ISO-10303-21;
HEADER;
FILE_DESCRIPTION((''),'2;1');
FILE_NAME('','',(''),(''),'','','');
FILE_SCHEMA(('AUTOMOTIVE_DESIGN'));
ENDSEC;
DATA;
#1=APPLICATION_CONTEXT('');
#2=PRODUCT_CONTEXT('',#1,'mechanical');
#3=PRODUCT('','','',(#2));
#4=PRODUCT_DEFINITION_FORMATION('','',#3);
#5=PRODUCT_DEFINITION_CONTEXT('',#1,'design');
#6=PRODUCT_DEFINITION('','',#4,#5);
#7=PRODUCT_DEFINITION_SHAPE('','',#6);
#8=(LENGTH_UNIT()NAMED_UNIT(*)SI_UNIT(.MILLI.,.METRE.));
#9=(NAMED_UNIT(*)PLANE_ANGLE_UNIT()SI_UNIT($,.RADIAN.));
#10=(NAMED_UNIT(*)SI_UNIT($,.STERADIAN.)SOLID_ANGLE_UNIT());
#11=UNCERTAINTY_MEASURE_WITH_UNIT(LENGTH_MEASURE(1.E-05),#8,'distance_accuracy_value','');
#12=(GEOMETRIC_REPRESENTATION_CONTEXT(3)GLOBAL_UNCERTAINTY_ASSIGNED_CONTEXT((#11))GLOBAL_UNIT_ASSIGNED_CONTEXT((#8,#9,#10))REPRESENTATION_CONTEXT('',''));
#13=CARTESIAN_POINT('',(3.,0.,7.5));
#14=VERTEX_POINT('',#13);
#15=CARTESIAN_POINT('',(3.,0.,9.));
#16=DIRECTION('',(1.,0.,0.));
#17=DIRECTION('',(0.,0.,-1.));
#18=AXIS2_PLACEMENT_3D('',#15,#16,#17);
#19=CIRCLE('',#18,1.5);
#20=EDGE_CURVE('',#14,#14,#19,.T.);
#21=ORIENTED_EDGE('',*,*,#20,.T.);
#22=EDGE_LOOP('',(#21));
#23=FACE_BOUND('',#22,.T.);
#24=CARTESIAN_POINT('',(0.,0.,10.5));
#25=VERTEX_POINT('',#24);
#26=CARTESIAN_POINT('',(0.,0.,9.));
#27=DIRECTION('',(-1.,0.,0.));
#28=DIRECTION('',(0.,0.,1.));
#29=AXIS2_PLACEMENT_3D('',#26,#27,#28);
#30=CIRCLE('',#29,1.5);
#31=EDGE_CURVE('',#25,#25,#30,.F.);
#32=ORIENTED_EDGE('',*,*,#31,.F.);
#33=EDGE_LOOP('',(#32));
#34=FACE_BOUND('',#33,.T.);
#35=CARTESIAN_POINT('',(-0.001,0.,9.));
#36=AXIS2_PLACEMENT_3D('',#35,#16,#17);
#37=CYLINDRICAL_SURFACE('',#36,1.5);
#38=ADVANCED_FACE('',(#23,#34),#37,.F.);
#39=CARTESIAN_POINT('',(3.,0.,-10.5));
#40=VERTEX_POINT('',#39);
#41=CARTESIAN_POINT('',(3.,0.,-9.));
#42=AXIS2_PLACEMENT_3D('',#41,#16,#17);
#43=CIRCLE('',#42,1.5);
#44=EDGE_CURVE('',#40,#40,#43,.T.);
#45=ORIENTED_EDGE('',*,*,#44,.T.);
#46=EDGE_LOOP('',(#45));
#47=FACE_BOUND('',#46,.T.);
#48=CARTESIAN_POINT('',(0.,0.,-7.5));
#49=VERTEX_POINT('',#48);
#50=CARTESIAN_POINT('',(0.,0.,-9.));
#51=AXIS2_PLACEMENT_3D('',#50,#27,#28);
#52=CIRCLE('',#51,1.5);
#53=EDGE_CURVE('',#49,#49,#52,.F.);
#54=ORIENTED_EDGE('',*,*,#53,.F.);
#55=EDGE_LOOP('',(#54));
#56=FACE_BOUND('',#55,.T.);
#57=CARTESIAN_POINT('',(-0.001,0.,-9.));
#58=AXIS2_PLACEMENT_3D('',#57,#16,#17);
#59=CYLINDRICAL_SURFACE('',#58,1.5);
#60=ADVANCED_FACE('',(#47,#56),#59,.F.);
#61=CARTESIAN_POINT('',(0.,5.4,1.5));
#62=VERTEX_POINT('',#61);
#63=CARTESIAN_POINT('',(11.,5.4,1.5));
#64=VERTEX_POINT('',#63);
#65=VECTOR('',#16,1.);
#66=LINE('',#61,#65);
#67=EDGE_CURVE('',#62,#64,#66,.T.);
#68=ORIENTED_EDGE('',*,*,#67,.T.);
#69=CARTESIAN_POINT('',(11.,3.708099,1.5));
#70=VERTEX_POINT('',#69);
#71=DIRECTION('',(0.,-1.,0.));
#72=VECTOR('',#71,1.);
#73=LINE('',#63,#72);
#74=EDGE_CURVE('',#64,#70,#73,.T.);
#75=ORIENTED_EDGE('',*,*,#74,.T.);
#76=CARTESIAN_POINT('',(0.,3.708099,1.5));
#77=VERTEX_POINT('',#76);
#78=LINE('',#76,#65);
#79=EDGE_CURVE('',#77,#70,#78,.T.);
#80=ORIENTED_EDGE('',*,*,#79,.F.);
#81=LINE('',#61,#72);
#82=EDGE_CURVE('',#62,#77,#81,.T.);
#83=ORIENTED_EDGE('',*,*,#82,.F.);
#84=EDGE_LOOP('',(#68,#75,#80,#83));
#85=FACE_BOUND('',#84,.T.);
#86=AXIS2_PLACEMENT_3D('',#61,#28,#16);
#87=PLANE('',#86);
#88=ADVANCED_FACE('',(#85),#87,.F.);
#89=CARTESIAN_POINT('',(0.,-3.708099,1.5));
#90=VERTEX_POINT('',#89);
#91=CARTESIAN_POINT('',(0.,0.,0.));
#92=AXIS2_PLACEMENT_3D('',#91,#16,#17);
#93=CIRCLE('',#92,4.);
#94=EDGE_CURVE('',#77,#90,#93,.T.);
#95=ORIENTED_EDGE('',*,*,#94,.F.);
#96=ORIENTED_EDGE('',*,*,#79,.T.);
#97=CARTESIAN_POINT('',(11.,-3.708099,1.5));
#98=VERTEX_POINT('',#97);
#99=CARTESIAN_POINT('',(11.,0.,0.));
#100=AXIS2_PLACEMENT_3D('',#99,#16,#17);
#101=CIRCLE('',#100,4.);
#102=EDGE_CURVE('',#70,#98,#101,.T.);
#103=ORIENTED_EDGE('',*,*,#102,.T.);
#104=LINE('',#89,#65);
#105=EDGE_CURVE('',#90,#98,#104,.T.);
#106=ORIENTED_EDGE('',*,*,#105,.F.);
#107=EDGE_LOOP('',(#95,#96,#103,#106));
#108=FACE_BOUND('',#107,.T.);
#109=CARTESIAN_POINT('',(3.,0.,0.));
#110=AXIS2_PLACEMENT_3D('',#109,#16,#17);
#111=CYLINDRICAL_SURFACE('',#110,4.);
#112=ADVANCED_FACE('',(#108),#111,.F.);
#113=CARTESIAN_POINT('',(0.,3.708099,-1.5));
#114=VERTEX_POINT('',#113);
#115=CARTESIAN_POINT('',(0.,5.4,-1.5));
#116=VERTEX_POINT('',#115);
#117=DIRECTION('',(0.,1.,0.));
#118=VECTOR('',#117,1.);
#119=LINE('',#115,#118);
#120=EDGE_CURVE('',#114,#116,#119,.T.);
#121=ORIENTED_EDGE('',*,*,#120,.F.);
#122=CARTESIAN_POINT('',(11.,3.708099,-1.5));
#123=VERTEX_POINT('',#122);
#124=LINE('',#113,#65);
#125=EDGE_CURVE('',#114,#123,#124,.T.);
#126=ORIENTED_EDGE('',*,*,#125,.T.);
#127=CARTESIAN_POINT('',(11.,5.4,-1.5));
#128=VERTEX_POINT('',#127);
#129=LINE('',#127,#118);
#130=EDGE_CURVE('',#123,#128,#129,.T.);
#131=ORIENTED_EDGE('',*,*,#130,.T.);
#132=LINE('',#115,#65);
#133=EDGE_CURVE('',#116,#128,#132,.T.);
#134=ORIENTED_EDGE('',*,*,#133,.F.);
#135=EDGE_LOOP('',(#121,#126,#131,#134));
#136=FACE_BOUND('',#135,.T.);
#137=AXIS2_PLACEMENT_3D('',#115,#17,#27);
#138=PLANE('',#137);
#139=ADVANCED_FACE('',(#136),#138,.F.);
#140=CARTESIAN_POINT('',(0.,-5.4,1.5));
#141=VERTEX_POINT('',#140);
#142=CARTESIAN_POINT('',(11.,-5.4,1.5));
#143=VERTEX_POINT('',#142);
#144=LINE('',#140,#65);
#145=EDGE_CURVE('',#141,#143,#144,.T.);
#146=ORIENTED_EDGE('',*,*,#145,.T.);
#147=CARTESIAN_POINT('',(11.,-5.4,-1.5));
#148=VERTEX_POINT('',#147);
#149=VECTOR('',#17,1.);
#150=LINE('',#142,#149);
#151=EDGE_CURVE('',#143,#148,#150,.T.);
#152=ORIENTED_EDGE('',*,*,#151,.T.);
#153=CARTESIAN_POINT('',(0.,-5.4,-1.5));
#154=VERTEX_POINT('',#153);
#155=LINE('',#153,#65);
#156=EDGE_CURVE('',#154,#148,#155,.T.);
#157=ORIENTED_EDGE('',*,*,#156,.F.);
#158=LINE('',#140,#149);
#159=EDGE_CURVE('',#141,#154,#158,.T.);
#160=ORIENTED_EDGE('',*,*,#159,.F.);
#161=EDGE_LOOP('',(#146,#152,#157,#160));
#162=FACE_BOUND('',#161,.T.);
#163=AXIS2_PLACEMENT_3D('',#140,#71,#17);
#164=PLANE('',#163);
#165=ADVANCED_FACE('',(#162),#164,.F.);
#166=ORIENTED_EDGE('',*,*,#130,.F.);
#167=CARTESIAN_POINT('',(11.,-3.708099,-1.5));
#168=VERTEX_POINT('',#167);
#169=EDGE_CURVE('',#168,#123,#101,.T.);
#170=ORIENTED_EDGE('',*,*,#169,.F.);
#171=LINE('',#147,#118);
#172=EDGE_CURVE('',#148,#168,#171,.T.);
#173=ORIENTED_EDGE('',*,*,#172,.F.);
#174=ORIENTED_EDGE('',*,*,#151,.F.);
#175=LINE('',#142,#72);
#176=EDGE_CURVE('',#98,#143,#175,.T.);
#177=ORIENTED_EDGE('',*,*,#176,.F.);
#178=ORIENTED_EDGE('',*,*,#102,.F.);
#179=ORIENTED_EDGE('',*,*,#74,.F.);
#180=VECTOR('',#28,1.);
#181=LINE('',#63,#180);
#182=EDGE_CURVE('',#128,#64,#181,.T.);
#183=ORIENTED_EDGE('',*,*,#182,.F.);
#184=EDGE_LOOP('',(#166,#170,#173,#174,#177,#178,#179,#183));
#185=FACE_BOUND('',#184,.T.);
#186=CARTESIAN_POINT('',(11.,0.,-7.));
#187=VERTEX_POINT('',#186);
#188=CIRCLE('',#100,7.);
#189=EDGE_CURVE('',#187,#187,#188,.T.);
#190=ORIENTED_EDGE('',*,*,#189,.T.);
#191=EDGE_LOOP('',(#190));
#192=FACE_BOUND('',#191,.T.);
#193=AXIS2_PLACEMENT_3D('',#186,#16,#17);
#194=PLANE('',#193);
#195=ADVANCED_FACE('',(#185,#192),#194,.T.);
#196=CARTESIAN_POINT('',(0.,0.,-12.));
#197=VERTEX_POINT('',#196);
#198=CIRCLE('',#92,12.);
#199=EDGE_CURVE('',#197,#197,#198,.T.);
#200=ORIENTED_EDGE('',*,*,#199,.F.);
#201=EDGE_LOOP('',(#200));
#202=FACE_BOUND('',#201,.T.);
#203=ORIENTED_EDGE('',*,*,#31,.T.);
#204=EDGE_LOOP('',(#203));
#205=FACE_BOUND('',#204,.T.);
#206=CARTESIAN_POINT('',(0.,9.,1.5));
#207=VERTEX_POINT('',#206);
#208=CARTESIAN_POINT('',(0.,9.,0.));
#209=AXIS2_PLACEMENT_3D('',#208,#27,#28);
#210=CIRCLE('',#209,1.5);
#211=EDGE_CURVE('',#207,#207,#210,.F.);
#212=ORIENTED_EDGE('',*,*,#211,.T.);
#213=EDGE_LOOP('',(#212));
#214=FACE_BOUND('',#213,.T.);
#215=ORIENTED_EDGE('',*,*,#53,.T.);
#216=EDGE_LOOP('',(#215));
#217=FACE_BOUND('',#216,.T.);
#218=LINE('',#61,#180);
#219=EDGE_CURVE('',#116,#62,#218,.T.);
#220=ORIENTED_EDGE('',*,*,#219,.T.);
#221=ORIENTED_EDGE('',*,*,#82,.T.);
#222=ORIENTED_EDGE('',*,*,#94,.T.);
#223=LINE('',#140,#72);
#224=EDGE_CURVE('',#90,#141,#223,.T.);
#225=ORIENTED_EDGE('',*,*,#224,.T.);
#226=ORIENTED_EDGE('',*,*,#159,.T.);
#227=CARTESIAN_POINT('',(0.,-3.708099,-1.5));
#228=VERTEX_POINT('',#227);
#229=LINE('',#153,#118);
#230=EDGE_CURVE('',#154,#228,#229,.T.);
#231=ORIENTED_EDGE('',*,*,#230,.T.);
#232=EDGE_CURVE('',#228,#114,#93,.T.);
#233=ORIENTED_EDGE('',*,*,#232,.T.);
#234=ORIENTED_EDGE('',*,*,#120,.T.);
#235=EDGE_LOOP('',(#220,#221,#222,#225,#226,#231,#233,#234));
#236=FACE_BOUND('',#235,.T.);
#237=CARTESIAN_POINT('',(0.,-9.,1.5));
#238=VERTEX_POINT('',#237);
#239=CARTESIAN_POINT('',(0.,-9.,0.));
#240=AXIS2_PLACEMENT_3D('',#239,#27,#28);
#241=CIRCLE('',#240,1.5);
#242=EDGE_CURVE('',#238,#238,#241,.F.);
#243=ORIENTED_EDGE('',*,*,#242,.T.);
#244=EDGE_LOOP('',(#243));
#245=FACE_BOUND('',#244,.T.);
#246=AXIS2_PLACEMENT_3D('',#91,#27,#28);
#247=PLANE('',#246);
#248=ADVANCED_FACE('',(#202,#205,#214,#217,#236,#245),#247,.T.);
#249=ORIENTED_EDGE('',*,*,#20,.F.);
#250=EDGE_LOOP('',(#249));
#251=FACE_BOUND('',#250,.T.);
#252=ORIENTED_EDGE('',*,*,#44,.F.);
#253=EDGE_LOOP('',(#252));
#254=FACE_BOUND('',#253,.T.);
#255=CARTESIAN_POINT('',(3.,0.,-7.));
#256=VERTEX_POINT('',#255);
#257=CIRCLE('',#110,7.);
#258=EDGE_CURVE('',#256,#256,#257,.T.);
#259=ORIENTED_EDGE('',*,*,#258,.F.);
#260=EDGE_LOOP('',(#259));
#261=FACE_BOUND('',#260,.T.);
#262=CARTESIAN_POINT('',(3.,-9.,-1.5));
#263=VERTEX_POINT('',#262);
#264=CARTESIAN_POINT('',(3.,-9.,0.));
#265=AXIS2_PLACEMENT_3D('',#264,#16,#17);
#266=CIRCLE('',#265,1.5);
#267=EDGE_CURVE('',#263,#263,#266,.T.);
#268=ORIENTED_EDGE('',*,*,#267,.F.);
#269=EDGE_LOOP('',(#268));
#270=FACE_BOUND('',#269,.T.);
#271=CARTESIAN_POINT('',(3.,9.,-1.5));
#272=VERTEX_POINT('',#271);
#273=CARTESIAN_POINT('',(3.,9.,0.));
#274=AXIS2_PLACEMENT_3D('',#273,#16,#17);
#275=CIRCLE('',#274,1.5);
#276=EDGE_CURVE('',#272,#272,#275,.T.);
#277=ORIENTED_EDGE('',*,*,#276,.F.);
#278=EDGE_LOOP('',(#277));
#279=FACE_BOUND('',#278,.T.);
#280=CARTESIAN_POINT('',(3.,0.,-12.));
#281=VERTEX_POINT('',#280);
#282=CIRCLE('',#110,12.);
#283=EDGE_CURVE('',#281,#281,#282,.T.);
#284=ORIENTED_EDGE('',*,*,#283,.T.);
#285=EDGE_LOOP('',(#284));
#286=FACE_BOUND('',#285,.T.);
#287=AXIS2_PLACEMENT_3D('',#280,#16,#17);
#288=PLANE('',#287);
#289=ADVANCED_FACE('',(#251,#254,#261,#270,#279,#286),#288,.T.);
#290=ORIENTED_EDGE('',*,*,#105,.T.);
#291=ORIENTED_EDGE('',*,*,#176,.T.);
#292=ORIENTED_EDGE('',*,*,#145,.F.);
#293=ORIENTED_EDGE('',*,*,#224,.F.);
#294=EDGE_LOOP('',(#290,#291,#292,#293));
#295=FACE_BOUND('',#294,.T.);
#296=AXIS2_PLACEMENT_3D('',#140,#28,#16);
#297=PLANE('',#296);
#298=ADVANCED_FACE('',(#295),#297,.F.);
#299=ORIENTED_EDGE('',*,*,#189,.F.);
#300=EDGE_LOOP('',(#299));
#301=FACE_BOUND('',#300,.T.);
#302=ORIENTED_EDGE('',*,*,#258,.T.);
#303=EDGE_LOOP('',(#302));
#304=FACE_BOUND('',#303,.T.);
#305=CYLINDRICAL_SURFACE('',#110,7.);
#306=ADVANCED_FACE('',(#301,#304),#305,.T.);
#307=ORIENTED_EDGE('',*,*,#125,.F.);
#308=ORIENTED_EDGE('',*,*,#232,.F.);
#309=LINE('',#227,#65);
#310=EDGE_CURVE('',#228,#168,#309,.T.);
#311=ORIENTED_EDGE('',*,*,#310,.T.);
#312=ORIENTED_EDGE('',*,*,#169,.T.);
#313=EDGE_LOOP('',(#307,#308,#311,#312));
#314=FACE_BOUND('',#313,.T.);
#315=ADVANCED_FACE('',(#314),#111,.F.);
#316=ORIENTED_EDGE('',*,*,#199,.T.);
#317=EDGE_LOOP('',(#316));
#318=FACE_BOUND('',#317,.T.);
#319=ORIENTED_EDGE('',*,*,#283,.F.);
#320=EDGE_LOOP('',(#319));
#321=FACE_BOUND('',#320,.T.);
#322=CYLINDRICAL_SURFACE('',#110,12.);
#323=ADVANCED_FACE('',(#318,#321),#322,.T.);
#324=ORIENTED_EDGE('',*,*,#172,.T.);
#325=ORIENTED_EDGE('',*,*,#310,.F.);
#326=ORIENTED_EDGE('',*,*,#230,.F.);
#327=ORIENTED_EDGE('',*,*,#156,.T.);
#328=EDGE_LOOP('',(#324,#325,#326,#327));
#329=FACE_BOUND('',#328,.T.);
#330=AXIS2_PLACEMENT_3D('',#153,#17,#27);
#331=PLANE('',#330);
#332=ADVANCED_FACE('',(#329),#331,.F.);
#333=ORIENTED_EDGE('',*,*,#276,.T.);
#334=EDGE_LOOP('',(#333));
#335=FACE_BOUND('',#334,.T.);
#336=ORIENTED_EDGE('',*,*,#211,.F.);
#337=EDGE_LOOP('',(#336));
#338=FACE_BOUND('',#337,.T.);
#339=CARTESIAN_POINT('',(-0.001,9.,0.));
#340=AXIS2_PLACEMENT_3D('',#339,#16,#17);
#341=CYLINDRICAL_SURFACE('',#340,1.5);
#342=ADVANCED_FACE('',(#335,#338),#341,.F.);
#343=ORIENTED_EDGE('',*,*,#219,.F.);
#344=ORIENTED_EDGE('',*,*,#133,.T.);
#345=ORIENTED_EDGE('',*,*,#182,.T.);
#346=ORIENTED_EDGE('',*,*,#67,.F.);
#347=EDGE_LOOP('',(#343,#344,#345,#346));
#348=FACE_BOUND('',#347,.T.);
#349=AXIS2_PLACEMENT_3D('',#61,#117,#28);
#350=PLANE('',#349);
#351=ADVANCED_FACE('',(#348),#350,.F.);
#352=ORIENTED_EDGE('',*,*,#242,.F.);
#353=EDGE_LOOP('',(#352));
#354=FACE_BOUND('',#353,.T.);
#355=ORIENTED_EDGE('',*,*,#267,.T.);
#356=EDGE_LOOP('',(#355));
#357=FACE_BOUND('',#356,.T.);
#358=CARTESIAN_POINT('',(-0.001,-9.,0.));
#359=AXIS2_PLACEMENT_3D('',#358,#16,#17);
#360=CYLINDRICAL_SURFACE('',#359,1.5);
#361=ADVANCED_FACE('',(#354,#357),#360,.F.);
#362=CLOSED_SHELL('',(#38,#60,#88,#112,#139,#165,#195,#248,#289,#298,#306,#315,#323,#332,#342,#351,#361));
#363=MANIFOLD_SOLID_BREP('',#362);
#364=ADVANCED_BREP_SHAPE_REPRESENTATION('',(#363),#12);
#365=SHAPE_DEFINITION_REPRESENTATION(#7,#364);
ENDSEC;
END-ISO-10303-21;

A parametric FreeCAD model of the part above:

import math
import FreeCAD as App
import Part
import Sketcher
from FreeCAD import Vector

doc = App.newDocument("Part")
params = doc.addObject("Spreadsheet::Sheet", "Params")
for row, (alias, value) in enumerate([
    ("sketch1_width", "3 mm"),
    ("sketch1_width2", "8 mm"),
    ("sketch1_height", "12 mm"),
    ("sketch1_height2", "4 mm"),
    ("revolution_angle", "360 deg"),
    ("sketch2_radius", "4 mm"),
    ("sketch2_height", "3 mm"),
    ("sketch3_diameter", "3 mm"),
    ("sketch4_diameter", "3 mm"),
    ("sketch5_diameter", "3 mm"),
    ("sketch6_diameter", "3 mm"),
    ("sketch7_diameter", "3.4 mm"),
    ("sketch8_diameter", "8 mm"),
], start=1):
    params.set(f"A{row}", alias)
    params.set(f"B{row}", "=" + value)
    params.setAlias(f"B{row}", alias)

body = doc.addObject("PartDesign::Body", "Body")

# Sketch on XZ plane
sketch1 = body.newObject("Sketcher::SketchObject", "Sketch")
sketch1.AttachmentSupport = (doc.getObject("XZ_Plane"), [""])
sketch1.MapMode = "FlatFace"
sketch1.addGeometry([
    Part.LineSegment(Vector(0, -12, 0), Vector(0, 0, 0)),  # 0
    Part.LineSegment(Vector(0, 0, 0), Vector(3, 0, 0)),  # 1
    Part.LineSegment(Vector(3, 0, 0), Vector(3, -4, 0)),  # 2
    Part.LineSegment(Vector(3, -4, 0), Vector(11, -4, 0)),  # 3
    Part.LineSegment(Vector(11, -4, 0), Vector(11, -7, 0)),  # 4
    Part.LineSegment(Vector(11, -7, 0), Vector(3, -7, 0)),  # 5
    Part.LineSegment(Vector(3, -7, 0), Vector(3, -12, 0)),  # 6
    Part.LineSegment(Vector(3, -12, 0), Vector(0, -12, 0)),  # 7
], False)
sketch1.addConstraint([
    Sketcher.Constraint("Coincident", 0, 2, 1, 1),
    Sketcher.Constraint("Coincident", 1, 2, 2, 1),
    Sketcher.Constraint("Coincident", 2, 2, 3, 1),
    Sketcher.Constraint("Coincident", 3, 2, 4, 1),
    Sketcher.Constraint("Coincident", 4, 2, 5, 1),
    Sketcher.Constraint("Coincident", 5, 2, 6, 1),
    Sketcher.Constraint("Coincident", 6, 2, 7, 1),
    Sketcher.Constraint("Coincident", 7, 2, 0, 1),
    Sketcher.Constraint("Vertical", 0),
    Sketcher.Constraint("Horizontal", 1),
    Sketcher.Constraint("Vertical", 2),
    Sketcher.Constraint("Horizontal", 3),
    Sketcher.Constraint("Vertical", 4),
    Sketcher.Constraint("Horizontal", 5),
    Sketcher.Constraint("Vertical", 6),
    Sketcher.Constraint("Horizontal", 7),
    Sketcher.Constraint("Coincident", 0, 2, -1, 1),
    Sketcher.Constraint("Vertical", 2, 2, 5, 2),
    Sketcher.Constraint("Equal", 7, 4),
    Sketcher.Constraint("DistanceX", 1, 1, 1, 2, 3.0),
    Sketcher.Constraint("DistanceX", 3, 1, 3, 2, 8.0),
    Sketcher.Constraint("DistanceY", 0, 1, 0, 2, 12.0),
    Sketcher.Constraint("DistanceY", 2, 2, 2, 1, 4.0),
])
sketch1.setExpression("Constraints[19]", "Params.sketch1_width")
sketch1.setExpression("Constraints[20]", "Params.sketch1_width2")
sketch1.setExpression("Constraints[21]", "Params.sketch1_height")
sketch1.setExpression("Constraints[22]", "Params.sketch1_height2")
revolution = body.newObject("PartDesign::Revolution", "Revolution")
revolution.Profile = sketch1
revolution.ReferenceAxis = (sketch1, ["H_Axis"])
revolution.setExpression("Angle", "Params.revolution_angle")

# Sketch on YZ plane
sketch2 = body.newObject("Sketcher::SketchObject", "Sketch001")
sketch2.AttachmentSupport = (doc.getObject("YZ_Plane"), [""])
sketch2.MapMode = "FlatFace"
sketch2.AttachmentOffset = App.Placement(Vector(0, 0, 11), App.Rotation())
sketch2.addGeometry([
    Part.LineSegment(Vector(-5.4, -1.5, 0), Vector(-3.708099, -1.5, 0)),  # 0
    Part.ArcOfCircle(Part.Circle(Vector(0, 0, 0), Vector(0, 0, 1), 4), math.radians(157.975687), math.radians(202.024313)),  # 1
    Part.LineSegment(Vector(-3.708099, 1.5, 0), Vector(-5.4, 1.5, 0)),  # 2
    Part.LineSegment(Vector(-5.4, 1.5, 0), Vector(-5.4, -1.5, 0)),  # 3
    Part.LineSegment(Vector(5.4, -1.5, 0), Vector(5.4, 1.5, 0)),  # 4
    Part.LineSegment(Vector(5.4, 1.5, 0), Vector(3.708099, 1.5, 0)),  # 5
    Part.ArcOfCircle(Part.Circle(Vector(0, 0, 0), Vector(0, 0, 1), 4), math.radians(-22.024313), math.radians(22.024313)),  # 6
    Part.LineSegment(Vector(3.708099, -1.5, 0), Vector(5.4, -1.5, 0)),  # 7
], False)
sketch2.addConstraint([
    Sketcher.Constraint("Coincident", 0, 2, 1, 2),
    Sketcher.Constraint("Coincident", 1, 1, 2, 1),
    Sketcher.Constraint("Coincident", 2, 2, 3, 1),
    Sketcher.Constraint("Coincident", 3, 2, 0, 1),
    Sketcher.Constraint("Coincident", 4, 2, 5, 1),
    Sketcher.Constraint("Coincident", 5, 2, 6, 2),
    Sketcher.Constraint("Coincident", 6, 1, 7, 1),
    Sketcher.Constraint("Coincident", 7, 2, 4, 1),
    Sketcher.Constraint("Horizontal", 0),
    Sketcher.Constraint("Horizontal", 2),
    Sketcher.Constraint("Vertical", 3),
    Sketcher.Constraint("Vertical", 4),
    Sketcher.Constraint("Horizontal", 5),
    Sketcher.Constraint("Horizontal", 7),
    Sketcher.Constraint("Coincident", 1, 3, -1, 1),
    Sketcher.Constraint("Coincident", 6, 3, -1, 1),
    Sketcher.Constraint("Equal", 1, 6),
    Sketcher.Constraint("Symmetric", 3, 2, 4, 2, -1, 1),
    Sketcher.Constraint("Horizontal", 2, 2, 4, 2),
    Sketcher.Constraint("Horizontal", 3, 2, 6, 1),
    Sketcher.Constraint("Radius", 1, 4.0),
    Sketcher.Constraint("DistanceY", 3, 2, 3, 1, 3.0),
    Sketcher.Constraint("DistanceX", 2, 2, -1, 1, 5.4),
])
sketch2.setExpression("Constraints[20]", "Params.sketch2_radius")
sketch2.setExpression("Constraints[21]", "Params.sketch2_height")
pocket1 = body.newObject("PartDesign::Pocket", "Pocket")
pocket1.Profile = sketch2
pocket1.Type = "ThroughAll"

# Sketch on YZ plane
sketch3 = body.newObject("Sketcher::SketchObject", "Sketch002")
sketch3.AttachmentSupport = (doc.getObject("YZ_Plane"), [""])
sketch3.MapMode = "FlatFace"
sketch3.AttachmentOffset = App.Placement(Vector(0, 0, 3), App.Rotation())
sketch3.addGeometry(Part.Circle(Vector(9, 0, 0), Vector(0, 0, 1), 1.5), False)
sketch3.addConstraint([
    Sketcher.Constraint("PointOnObject", 0, 3, -1),
    Sketcher.Constraint("Diameter", 0, 3.0),
    Sketcher.Constraint("DistanceX", -1, 1, 0, 3, 9.0),
])
sketch3.setExpression("Constraints[1]", "Params.sketch3_diameter")
pocket2 = body.newObject("PartDesign::Pocket", "Pocket001")
pocket2.Profile = sketch3
pocket2.Type = "UpToFirst"

# Sketch on YZ plane
sketch4 = body.newObject("Sketcher::SketchObject", "Sketch003")
sketch4.AttachmentSupport = (doc.getObject("YZ_Plane"), [""])
sketch4.MapMode = "FlatFace"
sketch4.AttachmentOffset = App.Placement(Vector(0, 0, 3), App.Rotation())
sketch4.addGeometry(Part.Circle(Vector(0, -9, 0), Vector(0, 0, 1), 1.5), False)
sketch4.addConstraint([
    Sketcher.Constraint("PointOnObject", 0, 3, -2),
    Sketcher.Constraint("Diameter", 0, 3.0),
    Sketcher.Constraint("DistanceY", 0, 3, -1, 1, 9.0),
])
sketch4.setExpression("Constraints[1]", "Params.sketch4_diameter")
pocket3 = body.newObject("PartDesign::Pocket", "Pocket002")
pocket3.Profile = sketch4
pocket3.Type = "UpToFirst"

# Sketch on YZ plane
sketch5 = body.newObject("Sketcher::SketchObject", "Sketch004")
sketch5.AttachmentSupport = (doc.getObject("YZ_Plane"), [""])
sketch5.MapMode = "FlatFace"
sketch5.AttachmentOffset = App.Placement(Vector(0, 0, 3), App.Rotation())
sketch5.addGeometry(Part.Circle(Vector(-9, 0, 0), Vector(0, 0, 1), 1.5), False)
sketch5.addConstraint([
    Sketcher.Constraint("PointOnObject", 0, 3, -1),
    Sketcher.Constraint("Diameter", 0, 3.0),
    Sketcher.Constraint("DistanceX", 0, 3, -1, 1, 9.0),
])
sketch5.setExpression("Constraints[1]", "Params.sketch5_diameter")
pocket4 = body.newObject("PartDesign::Pocket", "Pocket003")
pocket4.Profile = sketch5
pocket4.Type = "UpToFirst"

# Sketch on YZ plane
sketch6 = body.newObject("Sketcher::SketchObject", "Sketch005")
sketch6.AttachmentSupport = (doc.getObject("YZ_Plane"), [""])
sketch6.MapMode = "FlatFace"
sketch6.AttachmentOffset = App.Placement(Vector(0, 0, 3), App.Rotation())
sketch6.addGeometry(Part.Circle(Vector(0, 9, 0), Vector(0, 0, 1), 1.5), False)
sketch6.addConstraint([
    Sketcher.Constraint("PointOnObject", 0, 3, -2),
    Sketcher.Constraint("Diameter", 0, 3.0),
    Sketcher.Constraint("DistanceY", -1, 1, 0, 3, 9.0),
])
sketch6.setExpression("Constraints[1]", "Params.sketch6_diameter")
pocket5 = body.newObject("PartDesign::Pocket", "Pocket004")
pocket5.Profile = sketch6
pocket5.Type = "UpToFirst"

# Sketch on YZ plane
sketch7 = body.newObject("Sketcher::SketchObject", "Sketch006")
sketch7.AttachmentSupport = (doc.getObject("YZ_Plane"), [""])
sketch7.MapMode = "FlatFace"
sketch7.addGeometry(Part.Circle(Vector(0, 0, 0), Vector(0, 0, 1), 1.7), False)
sketch7.addConstraint([
    Sketcher.Constraint("Coincident", 0, 3, -1, 1),
    Sketcher.Constraint("Diameter", 0, 3.4),
])
sketch7.setExpression("Constraints[1]", "Params.sketch7_diameter")
pocket6 = body.newObject("PartDesign::Pocket", "Pocket005")
pocket6.Profile = sketch7
pocket6.Type = "ThroughAll"
pocket6.Reversed = True

# Sketch on YZ plane
sketch8 = body.newObject("Sketcher::SketchObject", "Sketch007")
sketch8.AttachmentSupport = (doc.getObject("YZ_Plane"), [""])
sketch8.MapMode = "FlatFace"
sketch8.AttachmentOffset = App.Placement(Vector(0, 0, 3), App.Rotation())
sketch8.addGeometry(Part.Circle(Vector(0, 0, 0), Vector(0, 0, 1), 4), False)
sketch8.addConstraint([
    Sketcher.Constraint("Coincident", 0, 3, -1, 1),
    Sketcher.Constraint("Diameter", 0, 8.0),
])
sketch8.setExpression("Constraints[1]", "Params.sketch8_diameter")
pocket7 = body.newObject("PartDesign::Pocket", "Pocket006")
pocket7.Profile = sketch8
pocket7.Type = "ThroughAll"

doc.recompute()
